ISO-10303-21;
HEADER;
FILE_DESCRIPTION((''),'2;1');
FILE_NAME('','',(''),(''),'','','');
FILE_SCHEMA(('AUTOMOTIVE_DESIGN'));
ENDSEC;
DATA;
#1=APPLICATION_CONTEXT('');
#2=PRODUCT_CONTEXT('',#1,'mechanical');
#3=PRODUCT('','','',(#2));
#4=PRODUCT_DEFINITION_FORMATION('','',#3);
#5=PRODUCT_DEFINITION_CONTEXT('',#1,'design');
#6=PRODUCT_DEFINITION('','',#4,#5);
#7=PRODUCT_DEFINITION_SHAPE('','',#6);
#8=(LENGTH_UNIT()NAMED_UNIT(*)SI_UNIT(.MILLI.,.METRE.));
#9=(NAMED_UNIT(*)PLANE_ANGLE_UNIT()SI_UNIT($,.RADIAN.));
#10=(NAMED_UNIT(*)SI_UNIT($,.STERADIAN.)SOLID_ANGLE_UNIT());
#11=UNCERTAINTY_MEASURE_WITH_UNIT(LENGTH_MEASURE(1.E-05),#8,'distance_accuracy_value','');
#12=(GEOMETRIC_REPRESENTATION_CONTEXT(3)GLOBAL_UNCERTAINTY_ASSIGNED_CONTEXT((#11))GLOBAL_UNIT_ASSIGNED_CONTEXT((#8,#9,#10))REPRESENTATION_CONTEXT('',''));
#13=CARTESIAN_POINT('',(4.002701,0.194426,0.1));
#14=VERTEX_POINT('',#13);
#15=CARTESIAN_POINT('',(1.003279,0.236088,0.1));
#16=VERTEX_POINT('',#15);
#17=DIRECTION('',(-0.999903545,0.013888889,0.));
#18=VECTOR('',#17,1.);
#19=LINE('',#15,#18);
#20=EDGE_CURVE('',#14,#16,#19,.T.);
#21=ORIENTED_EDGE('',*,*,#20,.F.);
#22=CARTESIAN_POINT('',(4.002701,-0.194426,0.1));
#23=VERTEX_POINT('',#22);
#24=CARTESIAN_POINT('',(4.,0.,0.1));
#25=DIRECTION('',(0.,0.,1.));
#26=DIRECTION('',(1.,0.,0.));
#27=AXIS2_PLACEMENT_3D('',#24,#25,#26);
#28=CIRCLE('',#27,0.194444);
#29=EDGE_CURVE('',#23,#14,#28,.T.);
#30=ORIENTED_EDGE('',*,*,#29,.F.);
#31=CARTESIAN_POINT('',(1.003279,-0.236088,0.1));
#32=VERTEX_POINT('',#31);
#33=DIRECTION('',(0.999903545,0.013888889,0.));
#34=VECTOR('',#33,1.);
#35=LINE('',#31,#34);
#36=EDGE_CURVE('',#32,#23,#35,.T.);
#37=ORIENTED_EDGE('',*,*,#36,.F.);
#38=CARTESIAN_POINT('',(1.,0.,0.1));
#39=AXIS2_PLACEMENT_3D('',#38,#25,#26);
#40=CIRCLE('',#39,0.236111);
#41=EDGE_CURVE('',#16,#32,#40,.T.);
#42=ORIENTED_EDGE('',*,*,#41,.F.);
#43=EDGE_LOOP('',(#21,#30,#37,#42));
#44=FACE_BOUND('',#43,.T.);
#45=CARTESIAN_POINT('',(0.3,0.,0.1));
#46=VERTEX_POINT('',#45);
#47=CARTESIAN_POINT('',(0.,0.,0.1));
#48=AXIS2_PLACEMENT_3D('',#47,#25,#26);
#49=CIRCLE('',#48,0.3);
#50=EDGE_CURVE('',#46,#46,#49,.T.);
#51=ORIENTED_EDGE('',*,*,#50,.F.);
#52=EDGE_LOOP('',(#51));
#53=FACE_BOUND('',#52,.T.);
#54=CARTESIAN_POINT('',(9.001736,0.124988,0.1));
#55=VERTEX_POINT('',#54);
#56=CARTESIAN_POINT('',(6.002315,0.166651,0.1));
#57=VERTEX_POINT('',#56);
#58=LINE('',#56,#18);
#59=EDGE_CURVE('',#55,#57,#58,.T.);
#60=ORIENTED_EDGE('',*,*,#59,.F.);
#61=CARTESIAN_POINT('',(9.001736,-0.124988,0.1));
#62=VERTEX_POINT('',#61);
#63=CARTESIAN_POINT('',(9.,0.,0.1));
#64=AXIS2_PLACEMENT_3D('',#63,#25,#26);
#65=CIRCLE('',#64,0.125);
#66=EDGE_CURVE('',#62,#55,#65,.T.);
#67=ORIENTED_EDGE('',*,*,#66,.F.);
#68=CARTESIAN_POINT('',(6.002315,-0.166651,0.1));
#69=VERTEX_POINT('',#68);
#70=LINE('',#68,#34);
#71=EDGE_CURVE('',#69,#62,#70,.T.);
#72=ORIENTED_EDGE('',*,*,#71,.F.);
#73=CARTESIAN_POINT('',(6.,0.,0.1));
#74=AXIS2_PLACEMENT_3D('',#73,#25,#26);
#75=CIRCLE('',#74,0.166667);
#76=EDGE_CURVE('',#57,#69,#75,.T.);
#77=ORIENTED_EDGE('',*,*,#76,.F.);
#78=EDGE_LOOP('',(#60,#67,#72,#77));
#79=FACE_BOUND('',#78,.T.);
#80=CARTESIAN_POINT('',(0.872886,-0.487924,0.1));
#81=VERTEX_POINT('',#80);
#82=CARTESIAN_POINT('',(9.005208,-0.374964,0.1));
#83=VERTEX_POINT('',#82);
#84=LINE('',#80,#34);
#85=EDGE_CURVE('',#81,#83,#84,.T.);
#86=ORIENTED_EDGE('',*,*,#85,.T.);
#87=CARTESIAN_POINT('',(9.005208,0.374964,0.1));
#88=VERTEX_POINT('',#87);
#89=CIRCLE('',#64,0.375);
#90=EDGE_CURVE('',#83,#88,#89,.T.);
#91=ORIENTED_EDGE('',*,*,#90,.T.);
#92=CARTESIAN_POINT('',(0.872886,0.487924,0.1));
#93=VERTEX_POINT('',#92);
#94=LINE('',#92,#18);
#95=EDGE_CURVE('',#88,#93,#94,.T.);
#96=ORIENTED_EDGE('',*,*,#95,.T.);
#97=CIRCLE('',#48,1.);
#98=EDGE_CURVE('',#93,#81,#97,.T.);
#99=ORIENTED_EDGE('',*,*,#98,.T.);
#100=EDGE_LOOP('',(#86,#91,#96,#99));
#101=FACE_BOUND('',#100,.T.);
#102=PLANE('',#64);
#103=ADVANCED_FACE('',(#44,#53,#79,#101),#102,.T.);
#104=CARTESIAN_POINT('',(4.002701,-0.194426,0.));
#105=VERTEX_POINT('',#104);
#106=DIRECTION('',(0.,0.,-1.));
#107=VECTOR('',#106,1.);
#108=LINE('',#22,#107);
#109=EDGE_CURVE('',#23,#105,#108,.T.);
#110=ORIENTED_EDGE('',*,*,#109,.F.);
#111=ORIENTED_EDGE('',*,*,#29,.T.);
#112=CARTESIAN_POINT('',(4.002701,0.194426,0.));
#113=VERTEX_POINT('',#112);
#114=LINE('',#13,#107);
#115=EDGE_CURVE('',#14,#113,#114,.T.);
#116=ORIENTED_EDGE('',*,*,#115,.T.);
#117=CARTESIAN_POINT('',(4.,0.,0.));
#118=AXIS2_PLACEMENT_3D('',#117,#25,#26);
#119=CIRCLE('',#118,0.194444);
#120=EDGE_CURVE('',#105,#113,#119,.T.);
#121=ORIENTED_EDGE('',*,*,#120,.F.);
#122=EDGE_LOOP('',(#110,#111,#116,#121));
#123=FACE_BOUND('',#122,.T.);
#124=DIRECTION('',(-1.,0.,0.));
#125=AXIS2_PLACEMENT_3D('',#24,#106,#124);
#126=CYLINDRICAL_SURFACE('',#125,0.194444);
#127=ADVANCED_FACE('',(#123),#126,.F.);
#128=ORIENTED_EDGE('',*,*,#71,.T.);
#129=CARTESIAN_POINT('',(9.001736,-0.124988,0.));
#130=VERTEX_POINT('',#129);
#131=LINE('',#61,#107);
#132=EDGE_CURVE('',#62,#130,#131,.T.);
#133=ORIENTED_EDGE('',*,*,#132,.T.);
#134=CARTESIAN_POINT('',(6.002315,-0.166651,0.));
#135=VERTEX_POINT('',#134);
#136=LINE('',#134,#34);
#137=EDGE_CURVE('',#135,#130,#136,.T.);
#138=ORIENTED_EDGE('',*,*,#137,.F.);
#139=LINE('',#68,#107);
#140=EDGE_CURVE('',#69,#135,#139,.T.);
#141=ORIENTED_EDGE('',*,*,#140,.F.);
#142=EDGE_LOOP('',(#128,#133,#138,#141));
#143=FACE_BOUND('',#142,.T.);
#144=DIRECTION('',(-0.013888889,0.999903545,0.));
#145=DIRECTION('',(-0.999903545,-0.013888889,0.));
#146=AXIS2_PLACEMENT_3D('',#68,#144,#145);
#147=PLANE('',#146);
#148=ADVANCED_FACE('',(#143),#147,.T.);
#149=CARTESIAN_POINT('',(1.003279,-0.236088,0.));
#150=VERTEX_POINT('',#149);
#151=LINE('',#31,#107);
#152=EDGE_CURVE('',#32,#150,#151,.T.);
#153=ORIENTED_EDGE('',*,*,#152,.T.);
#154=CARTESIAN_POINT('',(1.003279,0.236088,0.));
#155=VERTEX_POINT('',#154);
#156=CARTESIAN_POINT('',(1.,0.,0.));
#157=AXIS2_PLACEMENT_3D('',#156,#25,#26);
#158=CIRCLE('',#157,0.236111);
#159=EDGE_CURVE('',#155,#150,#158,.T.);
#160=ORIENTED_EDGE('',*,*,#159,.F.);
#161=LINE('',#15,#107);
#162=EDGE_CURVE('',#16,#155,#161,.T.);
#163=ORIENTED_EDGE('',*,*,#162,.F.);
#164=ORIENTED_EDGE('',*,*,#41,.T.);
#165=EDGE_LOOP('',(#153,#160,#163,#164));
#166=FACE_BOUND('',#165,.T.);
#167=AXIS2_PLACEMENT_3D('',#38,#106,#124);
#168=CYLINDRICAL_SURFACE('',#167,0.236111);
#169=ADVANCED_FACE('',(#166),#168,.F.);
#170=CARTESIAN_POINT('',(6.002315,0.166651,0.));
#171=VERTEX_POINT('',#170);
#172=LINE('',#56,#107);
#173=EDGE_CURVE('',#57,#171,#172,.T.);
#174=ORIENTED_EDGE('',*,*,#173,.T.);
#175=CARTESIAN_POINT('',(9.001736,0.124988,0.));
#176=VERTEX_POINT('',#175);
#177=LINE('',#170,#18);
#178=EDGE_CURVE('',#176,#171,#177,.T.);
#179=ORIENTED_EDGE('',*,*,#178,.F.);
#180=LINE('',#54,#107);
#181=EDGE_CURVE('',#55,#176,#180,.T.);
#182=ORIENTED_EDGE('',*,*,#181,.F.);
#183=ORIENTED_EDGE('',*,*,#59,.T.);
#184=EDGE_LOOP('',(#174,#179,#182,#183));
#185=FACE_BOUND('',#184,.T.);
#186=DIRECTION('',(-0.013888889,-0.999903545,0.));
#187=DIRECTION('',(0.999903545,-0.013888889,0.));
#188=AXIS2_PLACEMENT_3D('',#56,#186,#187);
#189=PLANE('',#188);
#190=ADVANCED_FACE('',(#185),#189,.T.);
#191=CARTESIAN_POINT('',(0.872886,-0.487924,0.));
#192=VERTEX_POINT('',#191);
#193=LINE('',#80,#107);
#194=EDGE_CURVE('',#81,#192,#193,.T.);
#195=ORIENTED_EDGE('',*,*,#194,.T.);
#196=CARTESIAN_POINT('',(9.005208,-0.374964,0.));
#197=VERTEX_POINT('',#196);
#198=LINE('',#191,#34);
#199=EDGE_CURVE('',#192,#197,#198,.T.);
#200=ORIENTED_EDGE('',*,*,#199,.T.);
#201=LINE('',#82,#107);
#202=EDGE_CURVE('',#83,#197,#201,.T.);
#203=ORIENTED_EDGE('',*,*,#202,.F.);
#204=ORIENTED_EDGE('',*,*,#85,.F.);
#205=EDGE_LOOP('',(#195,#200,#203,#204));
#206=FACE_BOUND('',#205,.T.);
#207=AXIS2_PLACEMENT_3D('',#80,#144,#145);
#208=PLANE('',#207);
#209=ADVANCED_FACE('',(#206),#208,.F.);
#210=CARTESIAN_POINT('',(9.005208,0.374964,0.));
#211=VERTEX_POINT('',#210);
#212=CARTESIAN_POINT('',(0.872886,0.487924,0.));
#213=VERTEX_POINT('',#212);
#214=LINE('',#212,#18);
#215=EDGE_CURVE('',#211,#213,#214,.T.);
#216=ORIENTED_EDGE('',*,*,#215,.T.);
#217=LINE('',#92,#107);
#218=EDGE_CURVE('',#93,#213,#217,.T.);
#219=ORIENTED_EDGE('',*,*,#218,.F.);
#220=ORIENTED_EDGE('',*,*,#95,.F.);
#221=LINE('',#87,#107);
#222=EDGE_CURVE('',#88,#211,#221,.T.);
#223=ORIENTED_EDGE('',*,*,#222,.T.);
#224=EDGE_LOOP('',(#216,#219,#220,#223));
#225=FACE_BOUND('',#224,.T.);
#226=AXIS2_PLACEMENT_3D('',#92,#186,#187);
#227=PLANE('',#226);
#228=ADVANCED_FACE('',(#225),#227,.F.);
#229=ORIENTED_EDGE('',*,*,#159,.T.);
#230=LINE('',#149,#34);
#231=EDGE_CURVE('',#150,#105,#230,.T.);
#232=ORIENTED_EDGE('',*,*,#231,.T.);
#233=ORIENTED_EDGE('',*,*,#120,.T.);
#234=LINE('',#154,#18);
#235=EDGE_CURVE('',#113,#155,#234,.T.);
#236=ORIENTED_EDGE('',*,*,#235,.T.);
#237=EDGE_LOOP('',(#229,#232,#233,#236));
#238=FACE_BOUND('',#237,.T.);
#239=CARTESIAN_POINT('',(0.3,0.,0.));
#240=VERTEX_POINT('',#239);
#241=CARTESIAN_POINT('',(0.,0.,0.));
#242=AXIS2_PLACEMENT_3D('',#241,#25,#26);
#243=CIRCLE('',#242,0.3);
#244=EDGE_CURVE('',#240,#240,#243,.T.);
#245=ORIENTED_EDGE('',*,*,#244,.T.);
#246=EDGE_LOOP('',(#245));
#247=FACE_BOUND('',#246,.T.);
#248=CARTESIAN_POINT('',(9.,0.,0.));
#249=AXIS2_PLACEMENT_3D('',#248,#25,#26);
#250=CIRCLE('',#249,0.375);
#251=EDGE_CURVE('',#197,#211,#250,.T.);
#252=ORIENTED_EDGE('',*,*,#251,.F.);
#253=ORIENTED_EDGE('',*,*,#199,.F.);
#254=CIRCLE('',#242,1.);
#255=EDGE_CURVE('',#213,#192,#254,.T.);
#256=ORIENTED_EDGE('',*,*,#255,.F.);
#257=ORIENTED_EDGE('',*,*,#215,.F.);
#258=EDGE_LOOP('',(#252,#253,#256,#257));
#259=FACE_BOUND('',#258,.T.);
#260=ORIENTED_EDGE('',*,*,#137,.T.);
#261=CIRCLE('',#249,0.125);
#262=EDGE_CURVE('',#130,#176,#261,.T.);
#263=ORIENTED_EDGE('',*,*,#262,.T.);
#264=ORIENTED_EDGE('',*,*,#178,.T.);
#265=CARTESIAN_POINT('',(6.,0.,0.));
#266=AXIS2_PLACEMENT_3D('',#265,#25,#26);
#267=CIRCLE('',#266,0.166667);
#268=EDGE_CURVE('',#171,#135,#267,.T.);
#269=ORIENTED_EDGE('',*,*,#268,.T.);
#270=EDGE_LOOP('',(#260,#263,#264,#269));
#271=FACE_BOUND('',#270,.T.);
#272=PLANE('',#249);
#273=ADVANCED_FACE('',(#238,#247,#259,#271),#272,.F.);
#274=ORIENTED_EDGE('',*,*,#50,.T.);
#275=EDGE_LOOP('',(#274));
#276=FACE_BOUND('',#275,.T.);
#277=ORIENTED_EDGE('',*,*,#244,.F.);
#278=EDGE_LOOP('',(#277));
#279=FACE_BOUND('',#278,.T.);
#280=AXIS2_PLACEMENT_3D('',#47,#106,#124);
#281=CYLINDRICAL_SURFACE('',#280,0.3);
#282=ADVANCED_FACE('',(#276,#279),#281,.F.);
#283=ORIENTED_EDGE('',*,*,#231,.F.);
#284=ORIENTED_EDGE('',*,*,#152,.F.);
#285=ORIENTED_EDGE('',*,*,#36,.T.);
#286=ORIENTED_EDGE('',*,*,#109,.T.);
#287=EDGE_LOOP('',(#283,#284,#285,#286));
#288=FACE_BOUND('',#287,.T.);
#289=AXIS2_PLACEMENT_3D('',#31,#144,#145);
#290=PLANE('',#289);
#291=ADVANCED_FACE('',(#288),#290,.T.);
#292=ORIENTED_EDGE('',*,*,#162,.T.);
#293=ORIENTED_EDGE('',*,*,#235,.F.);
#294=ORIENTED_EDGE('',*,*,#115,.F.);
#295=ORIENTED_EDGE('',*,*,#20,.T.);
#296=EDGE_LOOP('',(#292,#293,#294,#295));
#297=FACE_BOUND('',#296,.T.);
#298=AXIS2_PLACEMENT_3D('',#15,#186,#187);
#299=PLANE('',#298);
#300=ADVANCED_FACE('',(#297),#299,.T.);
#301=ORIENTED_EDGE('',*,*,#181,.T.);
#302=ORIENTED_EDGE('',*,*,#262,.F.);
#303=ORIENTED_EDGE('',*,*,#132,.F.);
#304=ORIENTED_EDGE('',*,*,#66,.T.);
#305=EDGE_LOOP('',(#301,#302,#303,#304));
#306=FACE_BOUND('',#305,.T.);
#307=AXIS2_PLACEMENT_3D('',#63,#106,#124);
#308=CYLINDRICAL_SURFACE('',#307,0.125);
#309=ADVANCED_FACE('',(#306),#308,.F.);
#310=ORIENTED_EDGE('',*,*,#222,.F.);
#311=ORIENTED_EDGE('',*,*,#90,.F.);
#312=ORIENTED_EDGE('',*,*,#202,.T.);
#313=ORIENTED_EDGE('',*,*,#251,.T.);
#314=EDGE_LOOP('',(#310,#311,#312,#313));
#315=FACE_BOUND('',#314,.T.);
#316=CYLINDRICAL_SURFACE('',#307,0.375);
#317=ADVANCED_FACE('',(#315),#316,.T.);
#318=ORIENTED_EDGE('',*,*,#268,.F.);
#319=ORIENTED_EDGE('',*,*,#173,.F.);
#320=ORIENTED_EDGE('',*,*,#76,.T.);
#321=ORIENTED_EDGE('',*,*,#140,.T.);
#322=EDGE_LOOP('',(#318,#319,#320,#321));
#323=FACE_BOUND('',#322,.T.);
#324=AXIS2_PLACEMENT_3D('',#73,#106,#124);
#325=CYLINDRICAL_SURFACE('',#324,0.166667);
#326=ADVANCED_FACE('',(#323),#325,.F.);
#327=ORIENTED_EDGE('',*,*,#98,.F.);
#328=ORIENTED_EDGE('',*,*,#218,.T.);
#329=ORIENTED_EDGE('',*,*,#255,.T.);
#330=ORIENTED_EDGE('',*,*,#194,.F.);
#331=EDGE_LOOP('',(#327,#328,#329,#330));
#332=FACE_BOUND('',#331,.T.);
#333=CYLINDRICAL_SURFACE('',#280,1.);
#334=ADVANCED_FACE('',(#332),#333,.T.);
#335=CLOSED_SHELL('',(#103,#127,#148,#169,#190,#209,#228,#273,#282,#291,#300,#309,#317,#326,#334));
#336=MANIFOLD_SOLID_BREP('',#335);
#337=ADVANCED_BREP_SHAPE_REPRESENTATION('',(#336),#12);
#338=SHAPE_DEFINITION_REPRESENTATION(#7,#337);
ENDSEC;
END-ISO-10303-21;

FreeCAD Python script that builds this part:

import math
import FreeCAD as App
import Part
import Sketcher
from FreeCAD import Vector

doc = App.newDocument("Part")
params = doc.addObject("Spreadsheet::Sheet", "Params")
for row, (alias, value) in enumerate([
    ("sketch1_radius", "1 mm"),
    ("sketch1_diameter", "0.6 mm"),
    ("pad1_length", "0.1 mm"),
], start=1):
    params.set(f"A{row}", alias)
    params.set(f"B{row}", "=" + value)
    params.setAlias(f"B{row}", alias)

body = doc.addObject("PartDesign::Body", "Body")

sketch1 = body.newObject("Sketcher::SketchObject", "Sketch")
sketch1.AttachmentSupport = (doc.getObject("XY_Plane"), [""])
sketch1.MapMode = "FlatFace"
sketch1.addGeometry([
    Part.LineSegment(Vector(9.005208, 0.374964, 0), Vector(0.872886, 0.487924, 0)),
    Part.ArcOfCircle(Part.Circle(Vector(0, 0, 0), Vector(0, 0, 1), 1), math.radians(29.2042), math.radians(330.7958)),
    Part.LineSegment(Vector(0.872886, -0.487924, 0), Vector(9.005208, -0.374964, 0)),
    Part.ArcOfCircle(Part.Circle(Vector(9, 0, 0), Vector(0, 0, 1), 0.375), math.radians(-89.2042), math.radians(89.2042)),
    Part.ArcOfCircle(Part.Circle(Vector(6, 0, 0), Vector(0, 0, 1), 0.166667), math.radians(89.2042), math.radians(270.7958)),
    Part.LineSegment(Vector(6.002315, 0.166651, 0), Vector(9.001736, 0.124988, 0)),
    Part.ArcOfCircle(Part.Circle(Vector(9, 0, 0), Vector(0, 0, 1), 0.125), math.radians(-89.2042), math.radians(89.2042)),
    Part.LineSegment(Vector(9.001736, -0.124988, 0), Vector(6.002315, -0.166651, 0)),
    Part.LineSegment(Vector(1.003279, 0.236088, 0), Vector(4.002701, 0.194426, 0)),
    Part.ArcOfCircle(Part.Circle(Vector(4, 0, 0), Vector(0, 0, 1), 0.194444), math.radians(-89.2042), math.radians(89.2042)),
    Part.LineSegment(Vector(4.002701, -0.194426, 0), Vector(1.003279, -0.236088, 0)),
    Part.ArcOfCircle(Part.Circle(Vector(1, 0, 0), Vector(0, 0, 1), 0.236111), math.radians(89.2042), math.radians(270.7958)),
    Part.Circle(Vector(0, 0, 0), Vector(0, 0, 1), 0.3),
], False)
sketch1.addConstraint([
    Sketcher.Constraint("Coincident", 0, 2, 1, 1),
    Sketcher.Constraint("Coincident", 1, 2, 2, 1),
    Sketcher.Constraint("Tangent", 2, 2, 3, 1),
    Sketcher.Constraint("Tangent", 3, 2, 0, 1),
    Sketcher.Constraint("Tangent", 4, 1, 5, 1),
    Sketcher.Constraint("Tangent", 5, 2, 6, 2),
    Sketcher.Constraint("Tangent", 6, 1, 7, 1),
    Sketcher.Constraint("Tangent", 7, 2, 4, 2),
    Sketcher.Constraint("Tangent", 8, 2, 9, 2),
    Sketcher.Constraint("Tangent", 9, 1, 10, 1),
    Sketcher.Constraint("Tangent", 10, 2, 11, 2),
    Sketcher.Constraint("Tangent", 11, 1, 8, 1),
    Sketcher.Constraint("Coincident", 1, 3, -1, 1),
    Sketcher.Constraint("Coincident", 12, 3, -1, 1),
    Sketcher.Constraint("Coincident", 6, 3, 3, 3),
    Sketcher.Constraint("Symmetric", 2, 2, 3, 2, -1),
    Sketcher.Constraint("Symmetric", 8, 2, 9, 1, -1),
    Sketcher.Constraint("PointOnObject", 4, 3, -1),
    Sketcher.Constraint("Parallel", 0, 5),
    Sketcher.Constraint("Parallel", 5, 8),
    Sketcher.Constraint("Equal", 7, 8),
    Sketcher.Constraint("Radius", 1, 1.0),
    Sketcher.Constraint("Diameter", 12, 0.6),
    Sketcher.Constraint("DistanceX", -1, 1, 3, 3, 9.0),
    Sketcher.Constraint("DistanceX", -1, 1, 4, 3, 6.0),
    Sketcher.Constraint("DistanceX", -1, 1, 9, 3, 4.0),
    Sketcher.Constraint("Radius", 3, 0.375),
    Sketcher.Constraint("Radius", 6, 0.125),
    Sketcher.Constraint("Radius", 11, 0.236111),
    Sketcher.Constraint("Radius", 4, 0.166667),
])
sketch1.setExpression("Constraints[21]", "Params.sketch1_radius")
sketch1.setExpression("Constraints[22]", "Params.sketch1_diameter")
pad1 = body.newObject("PartDesign::Pad", "Pad")
pad1.Profile = sketch1
pad1.setExpression("Length", "Params.pad1_length")

doc.recompute()
